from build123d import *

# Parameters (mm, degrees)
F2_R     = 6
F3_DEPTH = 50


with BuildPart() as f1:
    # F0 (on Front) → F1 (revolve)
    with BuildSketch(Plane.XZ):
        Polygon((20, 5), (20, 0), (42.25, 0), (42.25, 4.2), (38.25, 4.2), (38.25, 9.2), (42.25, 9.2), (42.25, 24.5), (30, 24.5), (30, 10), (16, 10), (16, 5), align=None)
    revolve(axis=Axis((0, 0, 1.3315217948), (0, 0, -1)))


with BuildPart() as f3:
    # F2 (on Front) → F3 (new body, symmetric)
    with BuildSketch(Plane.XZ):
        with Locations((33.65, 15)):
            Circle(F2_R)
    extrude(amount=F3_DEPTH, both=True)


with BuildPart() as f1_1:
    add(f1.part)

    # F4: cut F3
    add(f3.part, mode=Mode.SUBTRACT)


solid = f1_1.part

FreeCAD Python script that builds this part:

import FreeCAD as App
import Part
import Sketcher
Q = App.Units.Quantity


def add_polygon(sketch, points):
    """Adds a closed chain of lines whose ends are joined by coincident constraints."""
    first, n = sketch.GeometryCount, len(points)
    for a, b in zip(points, points[1:] + points[:1]):
        sketch.addGeometry(Part.LineSegment(App.Vector(*a, 0), App.Vector(*b, 0)), False)
    for i in range(n):
        sketch.addConstraint(Sketcher.Constraint("Coincident", first + i, 2, first + (i + 1) % n, 1))

doc = App.newDocument("Part")
params = doc.addObject("Spreadsheet::Sheet", "Params")
for row, (alias, value) in enumerate([
    ("sketch1_width", "4 mm"),
    ("sketch1_width2", "14 mm"),
    ("sketch1_height", "5 mm"),
    ("sketch1_height2", "4.2 mm"),
    ("sketch1_height3", "15.3 mm"),
    ("revolution_angle", "360 deg"),
    ("sketch2_diameter", "12 mm"),
    ("pad1_length", "100 mm"),
], start=1):
    params.set(f"A{row}", alias)
    params.set(f"B{row}", "=" + value)
    params.setAlias(f"B{row}", alias)

body = doc.addObject("PartDesign::Body", "Body")

sketch1 = body.newObject("Sketcher::SketchObject", "Sketch")
sketch1.AttachmentSupport = (doc.getObject("XZ_Plane"), [""])
sketch1.MapMode = "FlatFace"
add_polygon(sketch1, [(20, 5), (20, 0), (42.2, 0), (42.2, 4.2), (38.2, 4.2), (38.2, 9.2), (42.2, 9.2), (42.2, 24.5), (30, 24.5), (30, 10), (16, 10), (16, 5)])
sketch1.addConstraint([
    Sketcher.Constraint("Vertical", 0),
    Sketcher.Constraint("Horizontal", 1),
    Sketcher.Constraint("Vertical", 2),
    Sketcher.Constraint("Horizontal", 3),
    Sketcher.Constraint("Vertical", 4),
    Sketcher.Constraint("Horizontal", 5),
    Sketcher.Constraint("Vertical", 6),
    Sketcher.Constraint("Horizontal", 7),
    Sketcher.Constraint("Vertical", 8),
    Sketcher.Constraint("Horizontal", 9),
    Sketcher.Constraint("Vertical", 10),
    Sketcher.Constraint("Horizontal", 11),
    Sketcher.Constraint("PointOnObject", 0, 2, -1),
    Sketcher.Constraint("Vertical", 2, 2, 5, 2),
    Sketcher.Constraint("Equal", 5, 11),
    Sketcher.Constraint("Equal", 0, 4),
    Sketcher.Constraint("Equal", 4, 10),
    Sketcher.Constraint("DistanceX", 3, 2, 3, 1, Q("4 mm")),
    Sketcher.Constraint("DistanceX", 9, 2, 9, 1, Q("14 mm")),
    Sketcher.Constraint("DistanceY", 0, 2, 0, 1, Q("5 mm")),
    Sketcher.Constraint("DistanceY", 2, 1, 2, 2, Q("4.2 mm")),
    Sketcher.Constraint("DistanceY", 6, 1, 6, 2, Q("15.3 mm")),
    Sketcher.Constraint("DistanceX", -1, 1, 0, 2, Q("20 mm")),
    Sketcher.Constraint("DistanceX", 1, 1, 1, 2, Q("22.25 mm")),
])
sketch1.setExpression("Constraints[29]", "Params.sketch1_width")
sketch1.setExpression("Constraints[30]", "Params.sketch1_width2")
sketch1.setExpression("Constraints[31]", "Params.sketch1_height")
sketch1.setExpression("Constraints[32]", "Params.sketch1_height2")
sketch1.setExpression("Constraints[33]", "Params.sketch1_height3")
revolution = body.newObject("PartDesign::Revolution", "Revolution")
revolution.Profile = sketch1
revolution.ReferenceAxis = (sketch1, ["V_Axis"])
revolution.setExpression("Angle", "Params.revolution_angle")
body2 = doc.addObject("PartDesign::Body", "Body001")

sketch2 = body2.newObject("Sketcher::SketchObject", "Sketch001")
sketch2.AttachmentSupport = (doc.getObject("XZ_Plane001"), [""])
sketch2.MapMode = "FlatFace"
sketch2.addGeometry(Part.Circle(App.Vector(34, 15, 0), App.Vector(0, 0, 1), 6), False)
sketch2.addConstraint([
    Sketcher.Constraint("Diameter", 0, Q("12 mm")),
    Sketcher.Constraint("DistanceY", -1, 1, 0, 3, Q("15 mm")),
    Sketcher.Constraint("DistanceX", -1, 1, 0, 3, Q("33.65 mm")),
])
sketch2.setExpression("Constraints[0]", "Params.sketch2_diameter")
pad1 = body2.newObject("PartDesign::Pad", "Pad")
pad1.Profile = sketch2
pad1.setExpression("Length", "Params.pad1_length")
pad1.Midplane = True
doc.recompute()

boolean = body.newObject("PartDesign::Boolean", "Boolean")
boolean.Type = "Cut"
boolean.addObjects([body2])

doc.recompute()
